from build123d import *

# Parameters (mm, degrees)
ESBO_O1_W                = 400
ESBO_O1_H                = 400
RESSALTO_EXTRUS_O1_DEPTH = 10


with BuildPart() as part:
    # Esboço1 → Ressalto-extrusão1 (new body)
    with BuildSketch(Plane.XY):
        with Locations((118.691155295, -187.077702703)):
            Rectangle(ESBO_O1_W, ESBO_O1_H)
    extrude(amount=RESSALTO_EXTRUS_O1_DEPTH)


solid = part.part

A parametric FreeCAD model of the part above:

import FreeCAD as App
import Part
import Sketcher


def add_polygon(sketch, points):
    """Adds a closed chain of lines whose ends are joined by coincident constraints."""
    first, n = sketch.GeometryCount, len(points)
    for a, b in zip(points, points[1:] + points[:1]):
        sketch.addGeometry(Part.LineSegment(App.Vector(*a, 0), App.Vector(*b, 0)), False)
    for i in range(n):
        sketch.addConstraint(Sketcher.Constraint("Coincident", first + i, 2, first + (i + 1) % n, 1))

doc = App.newDocument("Part")
body = doc.addObject("PartDesign::Body", "Body")

# Sketch on XY plane
sketch1 = body.newObject("Sketcher::SketchObject", "Sketch")
sketch1.AttachmentSupport = (doc.getObject("XY_Plane"), [""])
sketch1.MapMode = "FlatFace"
add_polygon(sketch1, [(-81.308845, 12.922297), (-81.308845, -387.077703), (318.691155, -387.077703), (318.691155, 12.922297)])  # lines 0-3
sketch1.addConstraint([
    Sketcher.Constraint("Vertical", 0),
    Sketcher.Constraint("Horizontal", 1),
    Sketcher.Constraint("Vertical", 2),
    Sketcher.Constraint("Horizontal", 3),
    Sketcher.Constraint("Equal", 3, 0),
    Sketcher.Constraint("DistanceX", 1, 1, 1, 2, 400.0),
    Sketcher.Constraint("DistanceX", 0, 2, -1, 1, 81.308845),
    Sketcher.Constraint("DistanceY", 0, 2, -1, 1, 387.077703),
])
pad1 = body.newObject("PartDesign::Pad", "Pad")
pad1.Profile = sketch1
pad1.Length = 10

doc.recompute()
